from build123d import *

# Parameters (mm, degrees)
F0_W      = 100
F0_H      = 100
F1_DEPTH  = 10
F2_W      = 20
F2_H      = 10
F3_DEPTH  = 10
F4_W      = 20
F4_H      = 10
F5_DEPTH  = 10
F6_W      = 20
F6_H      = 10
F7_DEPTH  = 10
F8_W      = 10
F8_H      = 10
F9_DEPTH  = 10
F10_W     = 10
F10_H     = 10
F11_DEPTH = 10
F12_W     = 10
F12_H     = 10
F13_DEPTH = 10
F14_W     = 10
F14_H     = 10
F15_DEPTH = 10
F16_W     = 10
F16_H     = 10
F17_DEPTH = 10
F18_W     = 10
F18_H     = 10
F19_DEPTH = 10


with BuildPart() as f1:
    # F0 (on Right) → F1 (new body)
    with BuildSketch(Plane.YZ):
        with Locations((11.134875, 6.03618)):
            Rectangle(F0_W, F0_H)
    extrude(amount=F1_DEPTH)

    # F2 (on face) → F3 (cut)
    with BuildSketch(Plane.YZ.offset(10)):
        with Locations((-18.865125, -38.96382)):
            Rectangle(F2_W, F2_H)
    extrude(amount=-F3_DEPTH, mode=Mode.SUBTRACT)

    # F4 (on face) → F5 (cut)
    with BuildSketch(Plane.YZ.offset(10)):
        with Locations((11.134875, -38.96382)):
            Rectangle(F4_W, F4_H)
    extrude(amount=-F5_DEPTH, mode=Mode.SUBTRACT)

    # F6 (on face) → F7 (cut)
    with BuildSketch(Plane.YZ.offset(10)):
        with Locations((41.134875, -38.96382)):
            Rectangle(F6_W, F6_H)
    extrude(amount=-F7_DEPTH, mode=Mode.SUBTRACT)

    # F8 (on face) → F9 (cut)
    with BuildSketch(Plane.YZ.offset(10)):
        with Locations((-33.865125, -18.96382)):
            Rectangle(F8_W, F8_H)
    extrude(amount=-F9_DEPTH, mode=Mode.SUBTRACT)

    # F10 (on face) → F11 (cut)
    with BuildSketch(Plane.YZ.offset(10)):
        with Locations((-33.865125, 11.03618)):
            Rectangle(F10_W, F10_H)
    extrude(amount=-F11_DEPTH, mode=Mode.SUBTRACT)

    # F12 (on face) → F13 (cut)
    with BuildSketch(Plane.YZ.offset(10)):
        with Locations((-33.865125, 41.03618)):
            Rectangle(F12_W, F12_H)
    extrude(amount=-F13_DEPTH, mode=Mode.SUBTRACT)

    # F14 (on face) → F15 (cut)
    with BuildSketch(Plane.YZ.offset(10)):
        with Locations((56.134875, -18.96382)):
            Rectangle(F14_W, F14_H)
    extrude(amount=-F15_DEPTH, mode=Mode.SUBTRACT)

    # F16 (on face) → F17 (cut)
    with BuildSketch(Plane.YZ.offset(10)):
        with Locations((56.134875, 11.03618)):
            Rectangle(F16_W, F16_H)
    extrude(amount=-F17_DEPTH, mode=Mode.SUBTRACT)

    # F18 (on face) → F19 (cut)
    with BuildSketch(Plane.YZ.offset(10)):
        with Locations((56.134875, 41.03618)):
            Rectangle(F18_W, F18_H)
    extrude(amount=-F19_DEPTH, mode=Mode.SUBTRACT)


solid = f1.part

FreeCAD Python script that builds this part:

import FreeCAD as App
import Part
import Sketcher

V = App.Vector
Q = App.Units.Quantity

doc = App.newDocument("Part")
body = doc.addObject("PartDesign::Body", "Body")

sketch1 = doc.addObject("Sketcher::SketchObject", "Sketch")
body.addObject(sketch1)
sketch1.AttachmentSupport = (doc.YZ_Plane, [""])
sketch1.MapMode = "FlatFace"
sketch1.addGeometry([
    Part.LineSegment(V(-38.865125, 56.03618, 0), V(-38.865125, -43.96382, 0)),
    Part.LineSegment(V(-38.865125, -43.96382, 0), V(61.134875, -43.96382, 0)),
    Part.LineSegment(V(61.134875, -43.96382, 0), V(61.134875, 56.03618, 0)),
    Part.LineSegment(V(61.134875, 56.03618, 0), V(-38.865125, 56.03618, 0)),
], False)
sketch1.addConstraint([
    Sketcher.Constraint("Coincident", 0, 2, 1, 1),
    Sketcher.Constraint("Coincident", 1, 2, 2, 1),
    Sketcher.Constraint("Coincident", 2, 2, 3, 1),
    Sketcher.Constraint("Coincident", 3, 2, 0, 1),
    Sketcher.Constraint("Vertical", 0),
    Sketcher.Constraint("Horizontal", 1),
    Sketcher.Constraint("Vertical", 2),
    Sketcher.Constraint("Horizontal", 3),
    Sketcher.Constraint("Equal", 3, 0),
    Sketcher.Constraint("DistanceX", 1, 1, 1, 2, Q("100 mm")),
    Sketcher.Constraint("DistanceY", 0, 2, -1, 1, Q("43.96382 mm")),
    Sketcher.Constraint("DistanceX", 0, 2, -1, 1, Q("38.865125 mm")),
])
pad1 = doc.addObject("PartDesign::Pad", "Pad")
body.addObject(pad1)
pad1.Profile = sketch1
pad1.Length = 10

sketch2 = doc.addObject("Sketcher::SketchObject", "Sketch001")
body.addObject(sketch2)
sketch2.AttachmentSupport = (doc.YZ_Plane, [""])
sketch2.MapMode = "FlatFace"
sketch2.AttachmentOffset = App.Placement(V(0, 0, 10), App.Rotation())
sketch2.addGeometry([
    Part.LineSegment(V(-28.865125, -33.96382, 0), V(-28.865125, -43.96382, 0)),
    Part.LineSegment(V(-28.865125, -43.96382, 0), V(-8.865125, -43.96382, 0)),
    Part.LineSegment(V(-8.865125, -43.96382, 0), V(-8.865125, -33.96382, 0)),
    Part.LineSegment(V(-8.865125, -33.96382, 0), V(-28.865125, -33.96382, 0)),
], False)
sketch2.addConstraint([
    Sketcher.Constraint("Coincident", 0, 2, 1, 1),
    Sketcher.Constraint("Coincident", 1, 2, 2, 1),
    Sketcher.Constraint("Coincident", 2, 2, 3, 1),
    Sketcher.Constraint("Coincident", 3, 2, 0, 1),
    Sketcher.Constraint("Vertical", 0),
    Sketcher.Constraint("Horizontal", 1),
    Sketcher.Constraint("Vertical", 2),
    Sketcher.Constraint("Horizontal", 3),
    Sketcher.Constraint("DistanceX", 1, 1, 1, 2, Q("20 mm")),
    Sketcher.Constraint("DistanceY", 0, 2, 0, 1, Q("10 mm")),
    Sketcher.Constraint("DistanceY", 0, 2, -1, 1, Q("43.96382 mm")),
    Sketcher.Constraint("DistanceX", 0, 2, -1, 1, Q("28.865125 mm")),
])
pocket1 = doc.addObject("PartDesign::Pocket", "Pocket")
body.addObject(pocket1)
pocket1.Profile = sketch2
pocket1.Length = 10

sketch3 = doc.addObject("Sketcher::SketchObject", "Sketch002")
body.addObject(sketch3)
sketch3.AttachmentSupport = (doc.YZ_Plane, [""])
sketch3.MapMode = "FlatFace"
sketch3.AttachmentOffset = App.Placement(V(0, 0, 10), App.Rotation())
sketch3.addGeometry([
    Part.LineSegment(V(1.134875, -33.96382, 0), V(1.134875, -43.96382, 0)),
    Part.LineSegment(V(1.134875, -43.96382, 0), V(21.134875, -43.96382, 0)),
    Part.LineSegment(V(21.134875, -43.96382, 0), V(21.134875, -33.96382, 0)),
    Part.LineSegment(V(21.134875, -33.96382, 0), V(1.134875, -33.96382, 0)),
], False)
sketch3.addConstraint([
    Sketcher.Constraint("Coincident", 0, 2, 1, 1),
    Sketcher.Constraint("Coincident", 1, 2, 2, 1),
    Sketcher.Constraint("Coincident", 2, 2, 3, 1),
    Sketcher.Constraint("Coincident", 3, 2, 0, 1),
    Sketcher.Constraint("Vertical", 0),
    Sketcher.Constraint("Horizontal", 1),
    Sketcher.Constraint("Vertical", 2),
    Sketcher.Constraint("Horizontal", 3),
    Sketcher.Constraint("DistanceX", 1, 1, 1, 2, Q("20 mm")),
    Sketcher.Constraint("DistanceY", 0, 2, 0, 1, Q("10 mm")),
    Sketcher.Constraint("DistanceY", 0, 2, -1, 1, Q("43.96382 mm")),
    Sketcher.Constraint("DistanceX", -1, 1, 0, 2, Q("1.134875 mm")),
])
pocket2 = doc.addObject("PartDesign::Pocket", "Pocket001")
body.addObject(pocket2)
pocket2.Profile = sketch3
pocket2.Length = 10

sketch4 = doc.addObject("Sketcher::SketchObject", "Sketch003")
body.addObject(sketch4)
sketch4.AttachmentSupport = (doc.YZ_Plane, [""])
sketch4.MapMode = "FlatFace"
sketch4.AttachmentOffset = App.Placement(V(0, 0, 10), App.Rotation())
sketch4.addGeometry([
    Part.LineSegment(V(31.134875, -33.96382, 0), V(31.134875, -43.96382, 0)),
    Part.LineSegment(V(31.134875, -43.96382, 0), V(51.134875, -43.96382, 0)),
    Part.LineSegment(V(51.134875, -43.96382, 0), V(51.134875, -33.96382, 0)),
    Part.LineSegment(V(51.134875, -33.96382, 0), V(31.134875, -33.96382, 0)),
], False)
sketch4.addConstraint([
    Sketcher.Constraint("Coincident", 0, 2, 1, 1),
    Sketcher.Constraint("Coincident", 1, 2, 2, 1),
    Sketcher.Constraint("Coincident", 2, 2, 3, 1),
    Sketcher.Constraint("Coincident", 3, 2, 0, 1),
    Sketcher.Constraint("Vertical", 0),
    Sketcher.Constraint("Horizontal", 1),
    Sketcher.Constraint("Vertical", 2),
    Sketcher.Constraint("Horizontal", 3),
    Sketcher.Constraint("DistanceX", 1, 1, 1, 2, Q("20 mm")),
    Sketcher.Constraint("DistanceY", 0, 2, 0, 1, Q("10 mm")),
    Sketcher.Constraint("DistanceY", 0, 2, -1, 1, Q("43.96382 mm")),
    Sketcher.Constraint("DistanceX", -1, 1, 0, 2, Q("31.134875 mm")),
])
pocket3 = doc.addObject("PartDesign::Pocket", "Pocket002")
body.addObject(pocket3)
pocket3.Profile = sketch4
pocket3.Length = 10

sketch5 = doc.addObject("Sketcher::SketchObject", "Sketch004")
body.addObject(sketch5)
sketch5.AttachmentSupport = (doc.YZ_Plane, [""])
sketch5.MapMode = "FlatFace"
sketch5.AttachmentOffset = App.Placement(V(0, 0, 10), App.Rotation())
sketch5.addGeometry([
    Part.LineSegment(V(-38.865125, -13.96382, 0), V(-38.865125, -23.96382, 0)),
    Part.LineSegment(V(-38.865125, -23.96382, 0), V(-28.865125, -23.96382, 0)),
    Part.LineSegment(V(-28.865125, -23.96382, 0), V(-28.865125, -13.96382, 0)),
    Part.LineSegment(V(-28.865125, -13.96382, 0), V(-38.865125, -13.96382, 0)),
], False)
sketch5.addConstraint([
    Sketcher.Constraint("Coincident", 0, 2, 1, 1),
    Sketcher.Constraint("Coincident", 1, 2, 2, 1),
    Sketcher.Constraint("Coincident", 2, 2, 3, 1),
    Sketcher.Constraint("Coincident", 3, 2, 0, 1),
    Sketcher.Constraint("Vertical", 0),
    Sketcher.Constraint("Horizontal", 1),
    Sketcher.Constraint("Vertical", 2),
    Sketcher.Constraint("Horizontal", 3),
    Sketcher.Constraint("Equal", 3, 0),
    Sketcher.Constraint("DistanceX", 1, 1, 1, 2, Q("10 mm")),
    Sketcher.Constraint("DistanceY", 0, 2, -1, 1, Q("23.96382 mm")),
    Sketcher.Constraint("DistanceX", 0, 2, -1, 1, Q("38.865125 mm")),
])
pocket4 = doc.addObject("PartDesign::Pocket", "Pocket003")
body.addObject(pocket4)
pocket4.Profile = sketch5
pocket4.Length = 10

sketch6 = doc.addObject("Sketcher::SketchObject", "Sketch005")
body.addObject(sketch6)
sketch6.AttachmentSupport = (doc.YZ_Plane, [""])
sketch6.MapMode = "FlatFace"
sketch6.AttachmentOffset = App.Placement(V(0, 0, 10), App.Rotation())
sketch6.addGeometry([
    Part.LineSegment(V(-38.865125, 16.03618, 0), V(-38.865125, 6.03618, 0)),
    Part.LineSegment(V(-38.865125, 6.03618, 0), V(-28.865125, 6.03618, 0)),
    Part.LineSegment(V(-28.865125, 6.03618, 0), V(-28.865125, 16.03618, 0)),
    Part.LineSegment(V(-28.865125, 16.03618, 0), V(-38.865125, 16.03618, 0)),
], False)
sketch6.addConstraint([
    Sketcher.Constraint("Coincident", 0, 2, 1, 1),
    Sketcher.Constraint("Coincident", 1, 2, 2, 1),
    Sketcher.Constraint("Coincident", 2, 2, 3, 1),
    Sketcher.Constraint("Coincident", 3, 2, 0, 1),
    Sketcher.Constraint("Vertical", 0),
    Sketcher.Constraint("Horizontal", 1),
    Sketcher.Constraint("Vertical", 2),
    Sketcher.Constraint("Horizontal", 3),
    Sketcher.Constraint("Equal", 3, 0),
    Sketcher.Constraint("DistanceX", 1, 1, 1, 2, Q("10 mm")),
    Sketcher.Constraint("DistanceY", -1, 1, 0, 2, Q("6.03618 mm")),
    Sketcher.Constraint("DistanceX", 0, 2, -1, 1, Q("38.865125 mm")),
])
pocket5 = doc.addObject("PartDesign::Pocket", "Pocket004")
body.addObject(pocket5)
pocket5.Profile = sketch6
pocket5.Length = 10

sketch7 = doc.addObject("Sketcher::SketchObject", "Sketch006")
body.addObject(sketch7)
sketch7.AttachmentSupport = (doc.YZ_Plane, [""])
sketch7.MapMode = "FlatFace"
sketch7.AttachmentOffset = App.Placement(V(0, 0, 10), App.Rotation())
sketch7.addGeometry([
    Part.LineSegment(V(-38.865125, 46.03618, 0), V(-38.865125, 36.03618, 0)),
    Part.LineSegment(V(-38.865125, 36.03618, 0), V(-28.865125, 36.03618, 0)),
    Part.LineSegment(V(-28.865125, 36.03618, 0), V(-28.865125, 46.03618, 0)),
    Part.LineSegment(V(-28.865125, 46.03618, 0), V(-38.865125, 46.03618, 0)),
], False)
sketch7.addConstraint([
    Sketcher.Constraint("Coincident", 0, 2, 1, 1),
    Sketcher.Constraint("Coincident", 1, 2, 2, 1),
    Sketcher.Constraint("Coincident", 2, 2, 3, 1),
    Sketcher.Constraint("Coincident", 3, 2, 0, 1),
    Sketcher.Constraint("Vertical", 0),
    Sketcher.Constraint("Horizontal", 1),
    Sketcher.Constraint("Vertical", 2),
    Sketcher.Constraint("Horizontal", 3),
    Sketcher.Constraint("Equal", 3, 0),
    Sketcher.Constraint("DistanceX", 1, 1, 1, 2, Q("10 mm")),
    Sketcher.Constraint("DistanceY", -1, 1, 0, 2, Q("36.03618 mm")),
    Sketcher.Constraint("DistanceX", 0, 2, -1, 1, Q("38.865125 mm")),
])
pocket6 = doc.addObject("PartDesign::Pocket", "Pocket005")
body.addObject(pocket6)
pocket6.Profile = sketch7
pocket6.Length = 10

sketch8 = doc.addObject("Sketcher::SketchObject", "Sketch007")
body.addObject(sketch8)
sketch8.AttachmentSupport = (doc.YZ_Plane, [""])
sketch8.MapMode = "FlatFace"
sketch8.AttachmentOffset = App.Placement(V(0, 0, 10), App.Rotation())
sketch8.addGeometry([
    Part.LineSegment(V(51.134875, -13.96382, 0), V(51.134875, -23.96382, 0)),
    Part.LineSegment(V(51.134875, -23.96382, 0), V(61.134875, -23.96382, 0)),
    Part.LineSegment(V(61.134875, -23.96382, 0), V(61.134875, -13.96382, 0)),
    Part.LineSegment(V(61.134875, -13.96382, 0), V(51.134875, -13.96382, 0)),
], False)
sketch8.addConstraint([
    Sketcher.Constraint("Coincident", 0, 2, 1, 1),
    Sketcher.Constraint("Coincident", 1, 2, 2, 1),
    Sketcher.Constraint("Coincident", 2, 2, 3, 1),
    Sketcher.Constraint("Coincident", 3, 2, 0, 1),
    Sketcher.Constraint("Vertical", 0),
    Sketcher.Constraint("Horizontal", 1),
    Sketcher.Constraint("Vertical", 2),
    Sketcher.Constraint("Horizontal", 3),
    Sketcher.Constraint("Equal", 3, 0),
    Sketcher.Constraint("DistanceX", 1, 1, 1, 2, Q("10 mm")),
    Sketcher.Constraint("DistanceY", 0, 2, -1, 1, Q("23.96382 mm")),
    Sketcher.Constraint("DistanceX", -1, 1, 0, 2, Q("51.134875 mm")),
])
pocket7 = doc.addObject("PartDesign::Pocket", "Pocket006")
body.addObject(pocket7)
pocket7.Profile = sketch8
pocket7.Length = 10

sketch9 = doc.addObject("Sketcher::SketchObject", "Sketch008")
body.addObject(sketch9)
sketch9.AttachmentSupport = (doc.YZ_Plane, [""])
sketch9.MapMode = "FlatFace"
sketch9.AttachmentOffset = App.Placement(V(0, 0, 10), App.Rotation())
sketch9.addGeometry([
    Part.LineSegment(V(51.134875, 16.03618, 0), V(51.134875, 6.03618, 0)),
    Part.LineSegment(V(51.134875, 6.03618, 0), V(61.134875, 6.03618, 0)),
    Part.LineSegment(V(61.134875, 6.03618, 0), V(61.134875, 16.03618, 0)),
    Part.LineSegment(V(61.134875, 16.03618, 0), V(51.134875, 16.03618, 0)),
], False)
sketch9.addConstraint([
    Sketcher.Constraint("Coincident", 0, 2, 1, 1),
    Sketcher.Constraint("Coincident", 1, 2, 2, 1),
    Sketcher.Constraint("Coincident", 2, 2, 3, 1),
    Sketcher.Constraint("Coincident", 3, 2, 0, 1),
    Sketcher.Constraint("Vertical", 0),
    Sketcher.Constraint("Horizontal", 1),
    Sketcher.Constraint("Vertical", 2),
    Sketcher.Constraint("Horizontal", 3),
    Sketcher.Constraint("Equal", 3, 0),
    Sketcher.Constraint("DistanceX", 1, 1, 1, 2, Q("10 mm")),
    Sketcher.Constraint("DistanceY", -1, 1, 0, 2, Q("6.03618 mm")),
    Sketcher.Constraint("DistanceX", -1, 1, 0, 2, Q("51.134875 mm")),
])
pocket8 = doc.addObject("PartDesign::Pocket", "Pocket007")
body.addObject(pocket8)
pocket8.Profile = sketch9
pocket8.Length = 10

sketch10 = doc.addObject("Sketcher::SketchObject", "Sketch009")
body.addObject(sketch10)
sketch10.AttachmentSupport = (doc.YZ_Plane, [""])
sketch10.MapMode = "FlatFace"
sketch10.AttachmentOffset = App.Placement(V(0, 0, 10), App.Rotation())
sketch10.addGeometry([
    Part.LineSegment(V(51.134875, 46.03618, 0), V(51.134875, 36.03618, 0)),
    Part.LineSegment(V(51.134875, 36.03618, 0), V(61.134875, 36.03618, 0)),
    Part.LineSegment(V(61.134875, 36.03618, 0), V(61.134875, 46.03618, 0)),
    Part.LineSegment(V(61.134875, 46.03618, 0), V(51.134875, 46.03618, 0)),
], False)
sketch10.addConstraint([
    Sketcher.Constraint("Coincident", 0, 2, 1, 1),
    Sketcher.Constraint("Coincident", 1, 2, 2, 1),
    Sketcher.Constraint("Coincident", 2, 2, 3, 1),
    Sketcher.Constraint("Coincident", 3, 2, 0, 1),
    Sketcher.Constraint("Vertical", 0),
    Sketcher.Constraint("Horizontal", 1),
    Sketcher.Constraint("Vertical", 2),
    Sketcher.Constraint("Horizontal", 3),
    Sketcher.Constraint("Equal", 3, 0),
    Sketcher.Constraint("DistanceX", 1, 1, 1, 2, Q("10 mm")),
    Sketcher.Constraint("DistanceY", -1, 1, 0, 2, Q("36.03618 mm")),
    Sketcher.Constraint("DistanceX", -1, 1, 0, 2, Q("51.134875 mm")),
])
pocket9 = doc.addObject("PartDesign::Pocket", "Pocket008")
body.addObject(pocket9)
pocket9.Profile = sketch10
pocket9.Length = 10

doc.recompute()
